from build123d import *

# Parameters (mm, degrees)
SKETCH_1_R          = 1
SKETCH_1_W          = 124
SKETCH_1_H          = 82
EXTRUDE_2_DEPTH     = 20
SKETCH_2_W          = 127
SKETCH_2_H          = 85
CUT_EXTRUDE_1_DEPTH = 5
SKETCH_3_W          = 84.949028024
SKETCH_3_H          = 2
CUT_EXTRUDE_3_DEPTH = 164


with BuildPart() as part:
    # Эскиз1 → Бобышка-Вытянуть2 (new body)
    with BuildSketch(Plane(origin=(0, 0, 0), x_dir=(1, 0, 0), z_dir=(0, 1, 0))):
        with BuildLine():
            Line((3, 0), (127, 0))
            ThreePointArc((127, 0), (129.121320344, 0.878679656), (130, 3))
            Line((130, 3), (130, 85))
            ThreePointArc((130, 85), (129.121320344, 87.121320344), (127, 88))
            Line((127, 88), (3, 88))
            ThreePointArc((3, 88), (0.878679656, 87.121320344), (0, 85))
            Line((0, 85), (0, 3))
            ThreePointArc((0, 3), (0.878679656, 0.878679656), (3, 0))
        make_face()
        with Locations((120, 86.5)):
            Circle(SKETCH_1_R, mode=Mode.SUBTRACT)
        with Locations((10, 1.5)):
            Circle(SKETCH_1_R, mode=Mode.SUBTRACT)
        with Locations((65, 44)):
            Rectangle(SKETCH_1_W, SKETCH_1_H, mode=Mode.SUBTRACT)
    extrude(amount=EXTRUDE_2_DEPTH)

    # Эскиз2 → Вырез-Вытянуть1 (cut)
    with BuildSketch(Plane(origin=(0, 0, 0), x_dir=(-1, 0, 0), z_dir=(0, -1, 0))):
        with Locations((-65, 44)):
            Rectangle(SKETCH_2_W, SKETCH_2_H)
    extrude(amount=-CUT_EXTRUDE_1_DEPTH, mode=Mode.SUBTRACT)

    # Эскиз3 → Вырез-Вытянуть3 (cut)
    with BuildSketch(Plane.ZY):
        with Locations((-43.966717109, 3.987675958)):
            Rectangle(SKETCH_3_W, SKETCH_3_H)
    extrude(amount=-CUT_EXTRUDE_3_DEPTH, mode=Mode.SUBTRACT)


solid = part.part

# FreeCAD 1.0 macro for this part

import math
import FreeCAD as App
import Part
import Sketcher
Q = App.Units.Quantity


def add_polygon(sketch, points):
    """Adds a closed chain of lines whose ends are joined by coincident constraints."""
    first, n = sketch.GeometryCount, len(points)
    for a, b in zip(points, points[1:] + points[:1]):
        sketch.addGeometry(Part.LineSegment(App.Vector(*a, 0), App.Vector(*b, 0)), False)
    for i in range(n):
        sketch.addConstraint(Sketcher.Constraint("Coincident", first + i, 2, first + (i + 1) % n, 1))

doc = App.newDocument("Part")
params = doc.addObject("Spreadsheet::Sheet", "Params")
for row, (alias, value) in enumerate([
    ("sketch1_diameter", "2 mm"),
    ("sketch1_radius", "3 mm"),
    ("sketch1_width", "124 mm"),
    ("sketch1_height", "82 mm"),
    ("pad1_length", "20 mm"),
    ("sketch2_width", "127 mm"),
    ("sketch2_height", "85 mm"),
    ("pocket1_length", "5 mm"),
    ("sketch3_width", "2 mm"),
    ("pocket2_length", "164 mm"),
], start=1):
    params.set(f"A{row}", alias)
    params.set(f"B{row}", "=" + value)
    params.setAlias(f"B{row}", alias)

body = doc.addObject("PartDesign::Body", "Body")

# Sketch on XZ plane
sketch1 = body.newObject("Sketcher::SketchObject", "Sketch")
sketch1.AttachmentSupport = (doc.getObject("XZ_Plane"), [""])
sketch1.MapMode = "FlatFace"
sketch1.addGeometry(Part.LineSegment(App.Vector(3, 0, 0), App.Vector(127, 0, 0)), False)  # 0
sketch1.addGeometry(Part.ArcOfCircle(Part.Circle(App.Vector(127, -3, 0), App.Vector(0, 0, 1), 3), math.radians(0), math.radians(90)), False)  # 1
sketch1.addGeometry(Part.LineSegment(App.Vector(130, -3, 0), App.Vector(130, -85, 0)), False)  # 2
sketch1.addGeometry(Part.ArcOfCircle(Part.Circle(App.Vector(127, -85, 0), App.Vector(0, 0, 1), 3), math.radians(-90), math.radians(0)), False)  # 3
sketch1.addGeometry(Part.LineSegment(App.Vector(127, -88, 0), App.Vector(3, -88, 0)), False)  # 4
sketch1.addGeometry(Part.ArcOfCircle(Part.Circle(App.Vector(3, -85, 0), App.Vector(0, 0, 1), 3), math.radians(180), math.radians(270)), False)  # 5
sketch1.addGeometry(Part.LineSegment(App.Vector(0, -85, 0), App.Vector(0, -3, 0)), False)  # 6
sketch1.addGeometry(Part.ArcOfCircle(Part.Circle(App.Vector(3, -3, 0), App.Vector(0, 0, 1), 3), math.radians(90), math.radians(180)), False)  # 7
sketch1.addGeometry(Part.Circle(App.Vector(10, -1.5, 0), App.Vector(0, 0, 1), 1), False)  # 8
add_polygon(sketch1, [(127, -3), (3, -3), (3, -85), (127, -85)])  # lines 9-12
sketch1.addGeometry(Part.Circle(App.Vector(120, -86.5, 0), App.Vector(0, 0, 1), 1), False)  # 13
sketch1.addConstraint([
    Sketcher.Constraint("Tangent", 0, 2, 1, 2),
    Sketcher.Constraint("Tangent", 1, 1, 2, 1),
    Sketcher.Constraint("Tangent", 2, 2, 3, 2),
    Sketcher.Constraint("Tangent", 3, 1, 4, 1),
    Sketcher.Constraint("Tangent", 4, 2, 5, 2),
    Sketcher.Constraint("Tangent", 5, 1, 6, 1),
    Sketcher.Constraint("Tangent", 6, 2, 7, 2),
    Sketcher.Constraint("Tangent", 7, 1, 0, 1),
    Sketcher.Constraint("Horizontal", 0),
    Sketcher.Constraint("Vertical", 2),
    Sketcher.Constraint("Horizontal", 4),
    Sketcher.Constraint("Vertical", 6),
    Sketcher.Constraint("Horizontal", 9),
    Sketcher.Constraint("Vertical", 10),
    Sketcher.Constraint("Horizontal", 11),
    Sketcher.Constraint("Vertical", 12),
    Sketcher.Constraint("Coincident", 9, 2, 7, 3),
    Sketcher.Constraint("Coincident", 10, 2, 5, 3),
    Sketcher.Constraint("Coincident", 11, 2, 3, 3),
    Sketcher.Constraint("Equal", 1, 3),
    Sketcher.Constraint("Equal", 8, 13),
    Sketcher.Constraint("PointOnObject", 0, 2, -1),
    Sketcher.Constraint("PointOnObject", 5, 1, -2),
    Sketcher.Constraint("Diameter", 8, Q("2 mm")),
    Sketcher.Constraint("Radius", 1, Q("3 mm")),
    Sketcher.Constraint("DistanceX", 0, 1, 0, 2, Q("124 mm")),
    Sketcher.Constraint("DistanceY", 2, 2, 2, 1, Q("82 mm")),
    Sketcher.Constraint("DistanceX", -1, 1, 8, 3, Q("10 mm")),
    Sketcher.Constraint("DistanceX", -1, 1, 13, 3, Q("120 mm")),
    Sketcher.Constraint("DistanceY", 13, 3, 8, 3, Q("85 mm")),
    Sketcher.Constraint("DistanceY", 8, 3, -1, 1, Q("1.5 mm")),
])
sketch1.setExpression("Constraints[27]", "Params.sketch1_diameter")
sketch1.setExpression("Constraints[28]", "Params.sketch1_radius")
sketch1.setExpression("Constraints[29]", "Params.sketch1_width")
sketch1.setExpression("Constraints[30]", "Params.sketch1_height")
pad1 = body.newObject("PartDesign::Pad", "Pad")
pad1.Profile = sketch1
pad1.setExpression("Length", "Params.pad1_length")
pad1.Reversed = True

# Sketch on XZ plane
sketch2 = body.newObject("Sketcher::SketchObject", "Sketch001")
sketch2.AttachmentSupport = (doc.getObject("XZ_Plane"), [""])
sketch2.MapMode = "FlatFace"
add_polygon(sketch2, [(128, -86), (128, -2), (2, -2), (2, -86)])  # lines 0-3
sketch2.addConstraint([
    Sketcher.Constraint("Vertical", 0),
    Sketcher.Constraint("Horizontal", 1),
    Sketcher.Constraint("Vertical", 2),
    Sketcher.Constraint("Horizontal", 3),
    Sketcher.Constraint("DistanceX", 1, 2, 1, 1, Q("127 mm")),
    Sketcher.Constraint("DistanceY", 0, 1, 0, 2, Q("85 mm")),
    Sketcher.Constraint("DistanceX", -1, 1, 0, 2, Q("128.5 mm")),
    Sketcher.Constraint("DistanceY", 0, 2, -1, 1, Q("1.5 mm")),
])
sketch2.setExpression("Constraints[8]", "Params.sketch2_width")
sketch2.setExpression("Constraints[9]", "Params.sketch2_height")
pocket1 = body.newObject("PartDesign::Pocket", "Pocket")
pocket1.Profile = sketch2
pocket1.setExpression("Length", "Params.pocket1_length")

# Sketch on YZ plane
sketch3 = body.newObject("Sketcher::SketchObject", "Sketch002")
sketch3.AttachmentSupport = (doc.getObject("YZ_Plane"), [""])
sketch3.MapMode = "FlatFace"
add_polygon(sketch3, [(5, -86.4), (3, -86.4), (3, -1.5), (5, -1.5)])  # lines 0-3
sketch3.addConstraint([
    Sketcher.Constraint("Horizontal", 0),
    Sketcher.Constraint("Vertical", 1),
    Sketcher.Constraint("Horizontal", 2),
    Sketcher.Constraint("Vertical", 3),
    Sketcher.Constraint("DistanceX", 0, 2, 0, 1, Q("2 mm")),
    Sketcher.Constraint("DistanceY", 1, 1, 1, 2, Q("84.949028 mm")),
    Sketcher.Constraint("DistanceY", 0, 2, -1, 1, Q("86.441231 mm")),
    Sketcher.Constraint("DistanceX", -1, 1, 0, 2, Q("2.987676 mm")),
])
sketch3.setExpression("Constraints[8]", "Params.sketch3_width")
pocket2 = body.newObject("PartDesign::Pocket", "Pocket001")
pocket2.Profile = sketch3
pocket2.setExpression("Length", "Params.pocket2_length")
pocket2.Reversed = True

doc.recompute()
